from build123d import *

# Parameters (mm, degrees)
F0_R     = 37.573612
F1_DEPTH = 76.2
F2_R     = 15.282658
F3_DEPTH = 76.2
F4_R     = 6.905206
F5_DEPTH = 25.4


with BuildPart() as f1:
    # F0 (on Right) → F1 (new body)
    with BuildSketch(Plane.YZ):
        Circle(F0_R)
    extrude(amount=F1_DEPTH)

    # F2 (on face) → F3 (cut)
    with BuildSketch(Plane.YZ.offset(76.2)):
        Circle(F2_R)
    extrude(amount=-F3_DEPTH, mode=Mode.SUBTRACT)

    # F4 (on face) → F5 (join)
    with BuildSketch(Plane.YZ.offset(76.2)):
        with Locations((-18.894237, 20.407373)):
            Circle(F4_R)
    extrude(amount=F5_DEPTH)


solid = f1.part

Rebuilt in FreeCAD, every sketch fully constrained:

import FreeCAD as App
import Part
import Sketcher

V = App.Vector
Q = App.Units.Quantity

doc = App.newDocument("Part")
params = doc.addObject("Spreadsheet::Sheet", "Params")
for row, (alias, value) in enumerate([
    ("pad1_length", "3 in"),
    ("pocket1_length", "3 in"),
    ("pad2_length", "1 in"),
], start=1):
    params.set(f"A{row}", alias)
    params.set(f"B{row}", "=" + value)
    params.setAlias(f"B{row}", alias)

body = doc.addObject("PartDesign::Body", "Body")

sketch1 = body.newObject("Sketcher::SketchObject", "Sketch")
sketch1.AttachmentSupport = (doc.getObject("YZ_Plane"), [""])
sketch1.MapMode = "FlatFace"
sketch1.addGeometry(Part.Circle(V(0, 0, 0), V(0, 0, 1), 37.573612), False)
sketch1.addConstraint(Sketcher.Constraint("Coincident", 0, 3, -1, 1))
sketch1.addConstraint(Sketcher.Constraint("Diameter", 0, Q("75.147224 mm")))
pad1 = body.newObject("PartDesign::Pad", "Pad")
pad1.Profile = sketch1
pad1.setExpression("Length", "Params.pad1_length")

sketch2 = body.newObject("Sketcher::SketchObject", "Sketch001")
sketch2.AttachmentSupport = (doc.getObject("YZ_Plane"), [""])
sketch2.MapMode = "FlatFace"
sketch2.AttachmentOffset = App.Placement(V(0, 0, 3 * 25.4), App.Rotation())
sketch2.addGeometry(Part.Circle(V(0, 0, 0), V(0, 0, 1), 15.282658), False)
sketch2.addConstraint(Sketcher.Constraint("Coincident", 0, 3, -1, 1))
sketch2.addConstraint(Sketcher.Constraint("Diameter", 0, Q("30.565316 mm")))
pocket1 = body.newObject("PartDesign::Pocket", "Pocket")
pocket1.Profile = sketch2
pocket1.setExpression("Length", "Params.pocket1_length")

sketch3 = body.newObject("Sketcher::SketchObject", "Sketch002")
sketch3.AttachmentSupport = (doc.getObject("YZ_Plane"), [""])
sketch3.MapMode = "FlatFace"
sketch3.AttachmentOffset = App.Placement(V(0, 0, 3 * 25.4), App.Rotation())
sketch3.addGeometry(Part.Circle(V(-18.894237, 20.407373, 0), V(0, 0, 1), 6.905206), False)
sketch3.addConstraint(Sketcher.Constraint("Diameter", 0, Q("13.810412 mm")))
sketch3.addConstraint(Sketcher.Constraint("DistanceX", 0, 3, -1, 1, Q("18.894237 mm")))
sketch3.addConstraint(Sketcher.Constraint("DistanceY", -1, 1, 0, 3, Q("20.407373 mm")))
pad2 = body.newObject("PartDesign::Pad", "Pad001")
pad2.Profile = sketch3
pad2.setExpression("Length", "Params.pad2_length")

doc.recompute()
